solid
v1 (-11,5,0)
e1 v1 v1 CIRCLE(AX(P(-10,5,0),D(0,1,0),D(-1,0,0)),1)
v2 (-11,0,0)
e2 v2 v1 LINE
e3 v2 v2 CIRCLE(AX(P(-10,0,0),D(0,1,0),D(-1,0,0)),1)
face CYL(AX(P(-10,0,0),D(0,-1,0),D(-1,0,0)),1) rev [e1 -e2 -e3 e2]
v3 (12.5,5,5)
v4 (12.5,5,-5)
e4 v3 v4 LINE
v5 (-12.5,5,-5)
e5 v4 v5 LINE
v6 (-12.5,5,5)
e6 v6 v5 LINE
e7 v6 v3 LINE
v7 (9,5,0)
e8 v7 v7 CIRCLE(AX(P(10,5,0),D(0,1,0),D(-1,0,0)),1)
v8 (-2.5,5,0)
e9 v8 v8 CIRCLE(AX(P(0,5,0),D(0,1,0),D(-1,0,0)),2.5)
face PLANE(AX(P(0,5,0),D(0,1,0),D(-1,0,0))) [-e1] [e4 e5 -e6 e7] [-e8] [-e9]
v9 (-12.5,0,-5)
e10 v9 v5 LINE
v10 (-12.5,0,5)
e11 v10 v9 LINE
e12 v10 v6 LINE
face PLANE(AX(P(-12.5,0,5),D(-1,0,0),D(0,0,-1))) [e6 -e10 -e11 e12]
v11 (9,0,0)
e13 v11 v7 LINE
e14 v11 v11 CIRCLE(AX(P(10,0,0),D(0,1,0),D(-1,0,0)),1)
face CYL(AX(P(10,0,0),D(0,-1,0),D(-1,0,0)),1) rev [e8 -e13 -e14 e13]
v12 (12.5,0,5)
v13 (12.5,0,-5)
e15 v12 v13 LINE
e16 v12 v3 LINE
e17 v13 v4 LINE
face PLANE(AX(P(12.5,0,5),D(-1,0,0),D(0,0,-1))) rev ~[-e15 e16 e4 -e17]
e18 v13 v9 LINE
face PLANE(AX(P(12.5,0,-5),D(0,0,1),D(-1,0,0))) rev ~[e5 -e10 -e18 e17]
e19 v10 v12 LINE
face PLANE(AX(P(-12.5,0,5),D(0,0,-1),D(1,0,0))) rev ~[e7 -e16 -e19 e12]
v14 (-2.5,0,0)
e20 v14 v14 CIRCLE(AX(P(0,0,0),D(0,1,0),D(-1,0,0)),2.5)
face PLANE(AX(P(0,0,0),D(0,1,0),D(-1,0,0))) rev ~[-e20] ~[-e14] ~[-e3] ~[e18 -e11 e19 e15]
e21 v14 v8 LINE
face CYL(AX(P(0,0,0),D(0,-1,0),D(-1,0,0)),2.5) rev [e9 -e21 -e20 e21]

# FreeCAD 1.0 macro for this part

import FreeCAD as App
import Part
import Sketcher

V = App.Vector


def add_polygon(sketch, points):
    """Adds a closed chain of lines whose ends are joined by coincident constraints."""
    first, n = sketch.GeometryCount, len(points)
    for a, b in zip(points, points[1:] + points[:1]):
        sketch.addGeometry(Part.LineSegment(App.Vector(*a, 0), App.Vector(*b, 0)), False)
    for i in range(n):
        sketch.addConstraint(Sketcher.Constraint("Coincident", first + i, 2, first + (i + 1) % n, 1))

doc = App.newDocument("Part")
params = doc.addObject("Spreadsheet::Sheet", "Params")
for row, (alias, value) in enumerate([
    ("sketch1_diameter", "2 mm"),
    ("sketch1_diameter2", "5 mm"),
    ("sketch1_width", "25 mm"),
    ("sketch1_height", "10 mm"),
    ("pad1_length", "5 mm"),
], start=1):
    params.set(f"A{row}", alias)
    params.set(f"B{row}", "=" + value)
    params.setAlias(f"B{row}", alias)

body = doc.addObject("PartDesign::Body", "Body")

# Sketch on XZ plane
sketch1 = doc.addObject("Sketcher::SketchObject", "Sketch")
body.addObject(sketch1)
sketch1.AttachmentSupport = (doc.XZ_Plane, [""])
sketch1.MapMode = "FlatFace"
add_polygon(sketch1, [(12.5, 5), (12.5, -5), (-12.5, -5), (-12.5, 5)])  # lines 0-3
sketch1.addGeometry(Part.Circle(V(10, 0, 0), V(0, 0, 1), 1), False)  # 4
sketch1.addGeometry(Part.Circle(V(0, 0, 0), V(0, 0, 1), 2.5), False)  # 5
sketch1.addGeometry(Part.Circle(V(-10, 0, 0), V(0, 0, 1), 1), False)  # 6
sketch1.addConstraint(Sketcher.Constraint("Vertical", 0))
sketch1.addConstraint(Sketcher.Constraint("Horizontal", 1))
sketch1.addConstraint(Sketcher.Constraint("Vertical", 2))
sketch1.addConstraint(Sketcher.Constraint("Horizontal", 3))
sketch1.addConstraint(Sketcher.Constraint("Coincident", 5, 3, -1, 1))
sketch1.addConstraint(Sketcher.Constraint("Equal", 4, 6))
sketch1.addConstraint(Sketcher.Constraint("Symmetric", 4, 3, 6, 3, -1, 1))
sketch1.addConstraint(Sketcher.Constraint("Symmetric", 0, 2, 2, 2, -1, 1))
sketch1.addConstraint(Sketcher.Constraint("PointOnObject", 4, 3, -1))
sketch1.addConstraint(Sketcher.Constraint("Diameter", 4, 2.0))
sketch1.addConstraint(Sketcher.Constraint("Diameter", 5, 5.0))
sketch1.addConstraint(Sketcher.Constraint("DistanceX", 1, 2, 1, 1, 25.0))
sketch1.addConstraint(Sketcher.Constraint("DistanceY", 0, 2, 0, 1, 10.0))
sketch1.addConstraint(Sketcher.Constraint("DistanceX", -1, 1, 4, 3, 10.0))
sketch1.setExpression("Constraints[13]", "Params.sketch1_diameter")
sketch1.setExpression("Constraints[14]", "Params.sketch1_diameter2")
sketch1.setExpression("Constraints[15]", "Params.sketch1_width")
sketch1.setExpression("Constraints[16]", "Params.sketch1_height")
pad1 = doc.addObject("PartDesign::Pad", "Pad")
body.addObject(pad1)
pad1.Profile = sketch1
pad1.setExpression("Length", "Params.pad1_length")
pad1.Reversed = True

doc.recompute()
